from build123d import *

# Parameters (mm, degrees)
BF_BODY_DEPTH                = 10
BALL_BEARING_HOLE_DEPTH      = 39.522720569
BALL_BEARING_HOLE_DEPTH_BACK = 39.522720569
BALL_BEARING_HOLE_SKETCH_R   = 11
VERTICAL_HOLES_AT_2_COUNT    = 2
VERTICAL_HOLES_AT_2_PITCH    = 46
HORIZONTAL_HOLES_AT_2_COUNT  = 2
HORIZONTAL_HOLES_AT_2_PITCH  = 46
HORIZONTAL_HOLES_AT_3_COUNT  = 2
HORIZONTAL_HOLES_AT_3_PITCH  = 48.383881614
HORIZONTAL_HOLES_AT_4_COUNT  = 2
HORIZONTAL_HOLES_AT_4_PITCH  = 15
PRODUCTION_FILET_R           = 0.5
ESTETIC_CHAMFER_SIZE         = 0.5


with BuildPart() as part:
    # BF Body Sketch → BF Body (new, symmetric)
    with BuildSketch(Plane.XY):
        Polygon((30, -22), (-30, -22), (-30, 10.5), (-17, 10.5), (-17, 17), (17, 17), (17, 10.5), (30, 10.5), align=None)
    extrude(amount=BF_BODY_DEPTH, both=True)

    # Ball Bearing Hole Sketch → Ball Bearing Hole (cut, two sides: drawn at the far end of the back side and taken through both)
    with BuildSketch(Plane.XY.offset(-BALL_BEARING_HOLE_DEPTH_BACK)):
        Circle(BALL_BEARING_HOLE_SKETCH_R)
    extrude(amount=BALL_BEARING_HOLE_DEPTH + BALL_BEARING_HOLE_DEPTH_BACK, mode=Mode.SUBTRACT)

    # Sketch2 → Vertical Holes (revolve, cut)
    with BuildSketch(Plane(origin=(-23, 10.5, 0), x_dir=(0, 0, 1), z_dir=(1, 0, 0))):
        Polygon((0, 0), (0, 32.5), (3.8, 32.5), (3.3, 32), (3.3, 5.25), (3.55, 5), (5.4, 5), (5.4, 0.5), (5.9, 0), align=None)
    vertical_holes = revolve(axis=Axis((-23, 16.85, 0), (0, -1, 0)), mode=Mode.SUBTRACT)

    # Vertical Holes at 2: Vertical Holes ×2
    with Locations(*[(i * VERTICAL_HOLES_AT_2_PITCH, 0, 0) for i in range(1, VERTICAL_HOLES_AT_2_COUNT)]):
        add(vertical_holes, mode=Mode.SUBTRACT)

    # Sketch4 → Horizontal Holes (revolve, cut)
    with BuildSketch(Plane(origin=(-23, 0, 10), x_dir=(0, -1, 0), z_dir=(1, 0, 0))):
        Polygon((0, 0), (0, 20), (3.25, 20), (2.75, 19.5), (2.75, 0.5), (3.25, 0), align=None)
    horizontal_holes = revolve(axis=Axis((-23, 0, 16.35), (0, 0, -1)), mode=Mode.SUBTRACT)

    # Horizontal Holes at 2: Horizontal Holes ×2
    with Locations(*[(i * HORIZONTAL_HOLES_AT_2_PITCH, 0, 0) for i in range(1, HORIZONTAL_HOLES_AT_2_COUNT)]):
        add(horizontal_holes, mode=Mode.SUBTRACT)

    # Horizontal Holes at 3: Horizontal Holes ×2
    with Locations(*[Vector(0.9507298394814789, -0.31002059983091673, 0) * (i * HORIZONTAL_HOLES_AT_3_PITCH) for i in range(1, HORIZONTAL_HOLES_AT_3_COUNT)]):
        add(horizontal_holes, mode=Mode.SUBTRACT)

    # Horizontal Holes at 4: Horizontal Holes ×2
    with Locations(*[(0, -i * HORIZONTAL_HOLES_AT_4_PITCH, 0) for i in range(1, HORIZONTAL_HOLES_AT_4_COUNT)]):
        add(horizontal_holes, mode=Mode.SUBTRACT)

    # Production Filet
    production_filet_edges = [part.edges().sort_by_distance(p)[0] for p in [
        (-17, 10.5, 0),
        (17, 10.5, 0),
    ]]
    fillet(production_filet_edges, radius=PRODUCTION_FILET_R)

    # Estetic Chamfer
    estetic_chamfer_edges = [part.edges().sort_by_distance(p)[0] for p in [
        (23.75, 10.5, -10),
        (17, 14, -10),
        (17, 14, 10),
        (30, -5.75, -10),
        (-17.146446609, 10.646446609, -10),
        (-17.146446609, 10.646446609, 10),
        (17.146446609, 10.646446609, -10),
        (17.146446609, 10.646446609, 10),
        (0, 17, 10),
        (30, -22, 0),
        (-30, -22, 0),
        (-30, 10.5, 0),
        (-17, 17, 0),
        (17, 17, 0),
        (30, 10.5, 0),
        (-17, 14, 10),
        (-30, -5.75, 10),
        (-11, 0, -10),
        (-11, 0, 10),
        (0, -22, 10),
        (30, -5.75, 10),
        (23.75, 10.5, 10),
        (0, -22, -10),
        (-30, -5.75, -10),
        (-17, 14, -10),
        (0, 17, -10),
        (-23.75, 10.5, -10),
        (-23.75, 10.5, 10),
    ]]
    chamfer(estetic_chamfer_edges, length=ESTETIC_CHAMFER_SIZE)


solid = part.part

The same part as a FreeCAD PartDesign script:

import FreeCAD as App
import Part
import Sketcher
from FreeCAD import Vector
Q = App.Units.Quantity


def edges_at(feature, points):
    """Names of the edges that pass closest to the given points."""
    edges = feature.Shape.Edges
    near = lambda p: min(range(len(edges)), key=lambda i: edges[i].distToShape(Part.Vertex(*p))[0])
    return sorted({f"Edge{near(p) + 1}" for p in points})


def add_polygon(sketch, points):
    """Adds a closed chain of lines whose ends are joined by coincident constraints."""
    first, n = sketch.GeometryCount, len(points)
    for a, b in zip(points, points[1:] + points[:1]):
        sketch.addGeometry(Part.LineSegment(App.Vector(*a, 0), App.Vector(*b, 0)), False)
    for i in range(n):
        sketch.addConstraint(Sketcher.Constraint("Coincident", first + i, 2, first + (i + 1) % n, 1))

doc = App.newDocument("Part")
params = doc.addObject("Spreadsheet::Sheet", "Params")
for row, (alias, value) in enumerate([
    ("sketch1_width", "60 mm"),
    ("sketch1_width2", "13 mm"),
    ("sketch1_height", "32.5 mm"),
    ("sketch1_height2", "6.5 mm"),
    ("pad1_length", "20 mm"),
    ("sketch2_diameter", "22 mm"),
    ("sketch3_width", "32.5 mm"),
    ("sketch3_width2", "4.5 mm"),
    ("sketch3_height", "5.9 mm"),
    ("sketch3_height2", "3.8 mm"),
    ("sketch3_width3", "26.75 mm"),
    ("groove_angle", "360 deg"),
    ("linearpattern_pitch", "46 mm"),
    ("sketch4_height", "20 mm"),
    ("sketch4_height2", "19 mm"),
    ("sketch4_width", "3.25 mm"),
    ("groove2_angle", "360 deg"),
    ("linearpattern2_pitch", "46 mm"),
    ("linearpattern3_pitch", "48.383882 mm"),
    ("linearpattern4_pitch", "15 mm"),
    ("fillet_radius", "0.5 mm"),
    ("chamfer_size", "0.5 mm"),
], start=1):
    params.set(f"A{row}", alias)
    params.set(f"B{row}", "=" + value)
    params.setAlias(f"B{row}", alias)

body = doc.addObject("PartDesign::Body", "Body")

sketch1 = doc.addObject("Sketcher::SketchObject", "Sketch")
body.addObject(sketch1)
sketch1.AttachmentSupport = (doc.XY_Plane, [""])
sketch1.MapMode = "FlatFace"
add_polygon(sketch1, [(-30, -22), (30, -22), (30, 10), (17, 10), (17, 17), (-17, 17), (-17, 10), (-30, 10)])
sketch1.addConstraint([
    Sketcher.Constraint("Horizontal", 0),
    Sketcher.Constraint("Vertical", 1),
    Sketcher.Constraint("Horizontal", 2),
    Sketcher.Constraint("Vertical", 3),
    Sketcher.Constraint("Horizontal", 4),
    Sketcher.Constraint("Vertical", 5),
    Sketcher.Constraint("Horizontal", 6),
    Sketcher.Constraint("Vertical", 7),
    Sketcher.Constraint("Symmetric", 2, 2, 5, 2, -2),
    Sketcher.Constraint("Equal", 2, 6),
    Sketcher.Constraint("DistanceX", 0, 1, 0, 2, 60.0),
    Sketcher.Constraint("DistanceX", 2, 2, 2, 1, 13.0),
    Sketcher.Constraint("DistanceY", 1, 1, 1, 2, 32.5),
    Sketcher.Constraint("DistanceY", 3, 1, 3, 2, 6.5),
    Sketcher.Constraint("DistanceY", 0, 2, -1, 1, 22.0),
])
sketch1.setExpression("Constraints[18]", "Params.sketch1_width")
sketch1.setExpression("Constraints[19]", "Params.sketch1_width2")
sketch1.setExpression("Constraints[20]", "Params.sketch1_height")
sketch1.setExpression("Constraints[21]", "Params.sketch1_height2")
pad1 = doc.addObject("PartDesign::Pad", "Pad")
body.addObject(pad1)
pad1.Profile = sketch1
pad1.setExpression("Length", "Params.pad1_length")
pad1.Midplane = True

sketch2 = doc.addObject("Sketcher::SketchObject", "Sketch001")
body.addObject(sketch2)
sketch2.AttachmentSupport = (doc.XY_Plane, [""])
sketch2.MapMode = "FlatFace"
sketch2.addGeometry(Part.Circle(Vector(0, 0, 0), Vector(0, 0, 1), 11), False)
sketch2.addConstraint([
    Sketcher.Constraint("Coincident", 0, 3, -1, 1),
    Sketcher.Constraint("Diameter", 0, 22.0),
])
sketch2.setExpression("Constraints[1]", "Params.sketch2_diameter")
pocket1 = doc.addObject("PartDesign::Pocket", "Pocket")
body.addObject(pocket1)
pocket1.Profile = sketch2
pocket1.Type = "ThroughAll"
pocket1.Midplane = True

sketch3 = doc.addObject("Sketcher::SketchObject", "Sketch002")
body.addObject(sketch3)
sketch3.AttachmentSupport = (doc.YZ_Plane, [""])
sketch3.MapMode = "FlatFace"
sketch3.AttachmentOffset = App.Placement(Vector(0, 0, -23), App.Rotation())
add_polygon(sketch3, [(-22, 0), (10.5, 0), (10.5, 5.9), (10, 5.4), (5.5, 5.4), (5.5, 3.55), (5.25, 3.3), (-21.5, 3.3), (-22, 3.8)])
sketch3.addConstraint([
    Sketcher.Constraint("Horizontal", 0),
    Sketcher.Constraint("Vertical", 1),
    Sketcher.Constraint("Horizontal", 3),
    Sketcher.Constraint("Vertical", 4),
    Sketcher.Constraint("Horizontal", 6),
    Sketcher.Constraint("Vertical", 8),
    Sketcher.Constraint("PointOnObject", 0, 2, -1),
    Sketcher.Constraint("Parallel", 2, 5),
    Sketcher.Constraint("Perpendicular", 5, 7),
    Sketcher.Constraint("Equal", 2, 7),
    Sketcher.Constraint("Angle", 2, Q("-135 deg")),
    Sketcher.Constraint("DistanceX", 0, 1, 0, 2, 32.5),
    Sketcher.Constraint("DistanceX", 3, 2, 3, 1, 4.5),
    Sketcher.Constraint("DistanceY", 1, 1, 1, 2, 5.9),
    Sketcher.Constraint("DistanceY", 8, 2, 8, 1, 3.8),
    Sketcher.Constraint("DistanceX", -1, 1, 2, 2, 10.0),
    Sketcher.Constraint("DistanceX", 7, 2, -1, 1, 22.0),
    Sketcher.Constraint("DistanceX", 6, 2, 6, 1, 26.75),
])
sketch3.setExpression("Constraints[20]", "Params.sketch3_width")
sketch3.setExpression("Constraints[21]", "Params.sketch3_width2")
sketch3.setExpression("Constraints[22]", "Params.sketch3_height")
sketch3.setExpression("Constraints[23]", "Params.sketch3_height2")
sketch3.setExpression("Constraints[26]", "Params.sketch3_width3")
groove = doc.addObject("PartDesign::Groove", "Groove")
body.addObject(groove)
groove.Profile = sketch3
groove.ReferenceAxis = (sketch3, ["H_Axis"])
groove.setExpression("Angle", "Params.groove_angle")
doc.recompute()

linearpattern = doc.addObject("PartDesign::LinearPattern", "LinearPattern")
body.addObject(linearpattern)
linearpattern.Originals = [groove]
linearpattern.Direction = (doc.X_Axis, [""])
linearpattern.Mode = "offset"
linearpattern.setExpression("Offset", "Params.linearpattern_pitch")
linearpattern.Occurrences = 2
body.Tip = linearpattern

sketch4 = doc.addObject("Sketcher::SketchObject", "Sketch003")
body.addObject(sketch4)
sketch4.AttachmentSupport = (doc.YZ_Plane, [""])
sketch4.MapMode = "FlatFace"
sketch4.AttachmentOffset = App.Placement(Vector(0, 0, -23), App.Rotation())
add_polygon(sketch4, [(0, -10), (0, 10), (-3.2, 10), (-2.8, 9.5), (-2.8, -9.5), (-3.2, -10)])
sketch4.addConstraint([
    Sketcher.Constraint("Vertical", 0),
    Sketcher.Constraint("Horizontal", 1),
    Sketcher.Constraint("Vertical", 3),
    Sketcher.Constraint("Horizontal", 5),
    Sketcher.Constraint("Symmetric", 0, 2, 5, 2, -1, 1),
    Sketcher.Constraint("Perpendicular", 2, 4),
    Sketcher.Constraint("Vertical", 1, 2, 4, 2),
    Sketcher.Constraint("Equal", 2, 4),
    Sketcher.Constraint("DistanceY", 0, 1, 0, 2, 20.0),
    Sketcher.Constraint("DistanceY", 3, 2, 3, 1, 19.0),
    Sketcher.Constraint("DistanceX", 1, 2, 1, 1, 3.25),
])
sketch4.setExpression("Constraints[14]", "Params.sketch4_height")
sketch4.setExpression("Constraints[15]", "Params.sketch4_height2")
sketch4.setExpression("Constraints[16]", "Params.sketch4_width")
groove2 = doc.addObject("PartDesign::Groove", "Groove001")
body.addObject(groove2)
groove2.Profile = sketch4
groove2.ReferenceAxis = (sketch4, ["V_Axis"])
groove2.setExpression("Angle", "Params.groove2_angle")
doc.recompute()

linearpattern2 = doc.addObject("PartDesign::LinearPattern", "LinearPattern001")
body.addObject(linearpattern2)
linearpattern2.Originals = [groove2]
linearpattern2.Direction = (doc.X_Axis, [""])
linearpattern2.Mode = "offset"
linearpattern2.setExpression("Offset", "Params.linearpattern2_pitch")
linearpattern2.Occurrences = 2
body.Tip = linearpattern2
doc.recompute()

datumline = doc.addObject("PartDesign::Line", "DatumLine")
body.addObject(datumline)
datumline.Placement = App.Placement(Vector(0, 0, 0), App.Rotation(Vector(0, 0, 1), Vector(0.950729839, -0.3100206, 0)))
linearpattern3 = doc.addObject("PartDesign::LinearPattern", "LinearPattern002")
body.addObject(linearpattern3)
linearpattern3.Originals = [groove2]
linearpattern3.Direction = (datumline, [""])
linearpattern3.Mode = "offset"
linearpattern3.setExpression("Offset", "Params.linearpattern3_pitch")
linearpattern3.Occurrences = 2
body.Tip = linearpattern3
doc.recompute()

linearpattern4 = doc.addObject("PartDesign::LinearPattern", "LinearPattern003")
body.addObject(linearpattern4)
linearpattern4.Originals = [groove2]
linearpattern4.Direction = (doc.Y_Axis, [""])
linearpattern4.Mode = "offset"
linearpattern4.setExpression("Offset", "Params.linearpattern4_pitch")
linearpattern4.Occurrences = 2
linearpattern4.Reversed = True
body.Tip = linearpattern4
doc.recompute()

fillet = doc.addObject("PartDesign::Fillet", "Fillet")
body.addObject(fillet)
fillet.Base = (linearpattern4, edges_at(linearpattern4, [(-17, 10.5, 0), (17, 10.5, 0)]))
fillet.setExpression("Radius", "Params.fillet_radius")
doc.recompute()

chamfer = doc.addObject("PartDesign::Chamfer", "Chamfer")
body.addObject(chamfer)
chamfer.Base = (fillet, edges_at(fillet, [
    (23.75, 10.5, -10),
    (17, 14, -10),
    (17, 14, 10),
    (30, -5.75, -10),
    (-17.146, 10.646, -10),
    (-17.146, 10.646, 10),
    (17.146, 10.646, -10),
    (17.146, 10.646, 10),
    (0, 17, 10),
    (30, -22, 0),
    (-30, -22, 0),
    (-30, 10.5, 0),
    (-17, 17, 0),
    (17, 17, 0),
    (30, 10.5, 0),
    (-17, 14, 10),
    (-30, -5.75, 10),
    (-11, 0, -10),
    (-11, 0, 10),
    (0, -22, 10),
    (30, -5.75, 10),
    (23.75, 10.5, 10),
    (0, -22, -10),
    (-30, -5.75, -10),
    (-17, 14, -10),
    (0, 17, -10),
    (-23.75, 10.5, -10),
    (-23.75, 10.5, 10),
]))
chamfer.setExpression("Size", "Params.chamfer_size")

doc.recompute()
